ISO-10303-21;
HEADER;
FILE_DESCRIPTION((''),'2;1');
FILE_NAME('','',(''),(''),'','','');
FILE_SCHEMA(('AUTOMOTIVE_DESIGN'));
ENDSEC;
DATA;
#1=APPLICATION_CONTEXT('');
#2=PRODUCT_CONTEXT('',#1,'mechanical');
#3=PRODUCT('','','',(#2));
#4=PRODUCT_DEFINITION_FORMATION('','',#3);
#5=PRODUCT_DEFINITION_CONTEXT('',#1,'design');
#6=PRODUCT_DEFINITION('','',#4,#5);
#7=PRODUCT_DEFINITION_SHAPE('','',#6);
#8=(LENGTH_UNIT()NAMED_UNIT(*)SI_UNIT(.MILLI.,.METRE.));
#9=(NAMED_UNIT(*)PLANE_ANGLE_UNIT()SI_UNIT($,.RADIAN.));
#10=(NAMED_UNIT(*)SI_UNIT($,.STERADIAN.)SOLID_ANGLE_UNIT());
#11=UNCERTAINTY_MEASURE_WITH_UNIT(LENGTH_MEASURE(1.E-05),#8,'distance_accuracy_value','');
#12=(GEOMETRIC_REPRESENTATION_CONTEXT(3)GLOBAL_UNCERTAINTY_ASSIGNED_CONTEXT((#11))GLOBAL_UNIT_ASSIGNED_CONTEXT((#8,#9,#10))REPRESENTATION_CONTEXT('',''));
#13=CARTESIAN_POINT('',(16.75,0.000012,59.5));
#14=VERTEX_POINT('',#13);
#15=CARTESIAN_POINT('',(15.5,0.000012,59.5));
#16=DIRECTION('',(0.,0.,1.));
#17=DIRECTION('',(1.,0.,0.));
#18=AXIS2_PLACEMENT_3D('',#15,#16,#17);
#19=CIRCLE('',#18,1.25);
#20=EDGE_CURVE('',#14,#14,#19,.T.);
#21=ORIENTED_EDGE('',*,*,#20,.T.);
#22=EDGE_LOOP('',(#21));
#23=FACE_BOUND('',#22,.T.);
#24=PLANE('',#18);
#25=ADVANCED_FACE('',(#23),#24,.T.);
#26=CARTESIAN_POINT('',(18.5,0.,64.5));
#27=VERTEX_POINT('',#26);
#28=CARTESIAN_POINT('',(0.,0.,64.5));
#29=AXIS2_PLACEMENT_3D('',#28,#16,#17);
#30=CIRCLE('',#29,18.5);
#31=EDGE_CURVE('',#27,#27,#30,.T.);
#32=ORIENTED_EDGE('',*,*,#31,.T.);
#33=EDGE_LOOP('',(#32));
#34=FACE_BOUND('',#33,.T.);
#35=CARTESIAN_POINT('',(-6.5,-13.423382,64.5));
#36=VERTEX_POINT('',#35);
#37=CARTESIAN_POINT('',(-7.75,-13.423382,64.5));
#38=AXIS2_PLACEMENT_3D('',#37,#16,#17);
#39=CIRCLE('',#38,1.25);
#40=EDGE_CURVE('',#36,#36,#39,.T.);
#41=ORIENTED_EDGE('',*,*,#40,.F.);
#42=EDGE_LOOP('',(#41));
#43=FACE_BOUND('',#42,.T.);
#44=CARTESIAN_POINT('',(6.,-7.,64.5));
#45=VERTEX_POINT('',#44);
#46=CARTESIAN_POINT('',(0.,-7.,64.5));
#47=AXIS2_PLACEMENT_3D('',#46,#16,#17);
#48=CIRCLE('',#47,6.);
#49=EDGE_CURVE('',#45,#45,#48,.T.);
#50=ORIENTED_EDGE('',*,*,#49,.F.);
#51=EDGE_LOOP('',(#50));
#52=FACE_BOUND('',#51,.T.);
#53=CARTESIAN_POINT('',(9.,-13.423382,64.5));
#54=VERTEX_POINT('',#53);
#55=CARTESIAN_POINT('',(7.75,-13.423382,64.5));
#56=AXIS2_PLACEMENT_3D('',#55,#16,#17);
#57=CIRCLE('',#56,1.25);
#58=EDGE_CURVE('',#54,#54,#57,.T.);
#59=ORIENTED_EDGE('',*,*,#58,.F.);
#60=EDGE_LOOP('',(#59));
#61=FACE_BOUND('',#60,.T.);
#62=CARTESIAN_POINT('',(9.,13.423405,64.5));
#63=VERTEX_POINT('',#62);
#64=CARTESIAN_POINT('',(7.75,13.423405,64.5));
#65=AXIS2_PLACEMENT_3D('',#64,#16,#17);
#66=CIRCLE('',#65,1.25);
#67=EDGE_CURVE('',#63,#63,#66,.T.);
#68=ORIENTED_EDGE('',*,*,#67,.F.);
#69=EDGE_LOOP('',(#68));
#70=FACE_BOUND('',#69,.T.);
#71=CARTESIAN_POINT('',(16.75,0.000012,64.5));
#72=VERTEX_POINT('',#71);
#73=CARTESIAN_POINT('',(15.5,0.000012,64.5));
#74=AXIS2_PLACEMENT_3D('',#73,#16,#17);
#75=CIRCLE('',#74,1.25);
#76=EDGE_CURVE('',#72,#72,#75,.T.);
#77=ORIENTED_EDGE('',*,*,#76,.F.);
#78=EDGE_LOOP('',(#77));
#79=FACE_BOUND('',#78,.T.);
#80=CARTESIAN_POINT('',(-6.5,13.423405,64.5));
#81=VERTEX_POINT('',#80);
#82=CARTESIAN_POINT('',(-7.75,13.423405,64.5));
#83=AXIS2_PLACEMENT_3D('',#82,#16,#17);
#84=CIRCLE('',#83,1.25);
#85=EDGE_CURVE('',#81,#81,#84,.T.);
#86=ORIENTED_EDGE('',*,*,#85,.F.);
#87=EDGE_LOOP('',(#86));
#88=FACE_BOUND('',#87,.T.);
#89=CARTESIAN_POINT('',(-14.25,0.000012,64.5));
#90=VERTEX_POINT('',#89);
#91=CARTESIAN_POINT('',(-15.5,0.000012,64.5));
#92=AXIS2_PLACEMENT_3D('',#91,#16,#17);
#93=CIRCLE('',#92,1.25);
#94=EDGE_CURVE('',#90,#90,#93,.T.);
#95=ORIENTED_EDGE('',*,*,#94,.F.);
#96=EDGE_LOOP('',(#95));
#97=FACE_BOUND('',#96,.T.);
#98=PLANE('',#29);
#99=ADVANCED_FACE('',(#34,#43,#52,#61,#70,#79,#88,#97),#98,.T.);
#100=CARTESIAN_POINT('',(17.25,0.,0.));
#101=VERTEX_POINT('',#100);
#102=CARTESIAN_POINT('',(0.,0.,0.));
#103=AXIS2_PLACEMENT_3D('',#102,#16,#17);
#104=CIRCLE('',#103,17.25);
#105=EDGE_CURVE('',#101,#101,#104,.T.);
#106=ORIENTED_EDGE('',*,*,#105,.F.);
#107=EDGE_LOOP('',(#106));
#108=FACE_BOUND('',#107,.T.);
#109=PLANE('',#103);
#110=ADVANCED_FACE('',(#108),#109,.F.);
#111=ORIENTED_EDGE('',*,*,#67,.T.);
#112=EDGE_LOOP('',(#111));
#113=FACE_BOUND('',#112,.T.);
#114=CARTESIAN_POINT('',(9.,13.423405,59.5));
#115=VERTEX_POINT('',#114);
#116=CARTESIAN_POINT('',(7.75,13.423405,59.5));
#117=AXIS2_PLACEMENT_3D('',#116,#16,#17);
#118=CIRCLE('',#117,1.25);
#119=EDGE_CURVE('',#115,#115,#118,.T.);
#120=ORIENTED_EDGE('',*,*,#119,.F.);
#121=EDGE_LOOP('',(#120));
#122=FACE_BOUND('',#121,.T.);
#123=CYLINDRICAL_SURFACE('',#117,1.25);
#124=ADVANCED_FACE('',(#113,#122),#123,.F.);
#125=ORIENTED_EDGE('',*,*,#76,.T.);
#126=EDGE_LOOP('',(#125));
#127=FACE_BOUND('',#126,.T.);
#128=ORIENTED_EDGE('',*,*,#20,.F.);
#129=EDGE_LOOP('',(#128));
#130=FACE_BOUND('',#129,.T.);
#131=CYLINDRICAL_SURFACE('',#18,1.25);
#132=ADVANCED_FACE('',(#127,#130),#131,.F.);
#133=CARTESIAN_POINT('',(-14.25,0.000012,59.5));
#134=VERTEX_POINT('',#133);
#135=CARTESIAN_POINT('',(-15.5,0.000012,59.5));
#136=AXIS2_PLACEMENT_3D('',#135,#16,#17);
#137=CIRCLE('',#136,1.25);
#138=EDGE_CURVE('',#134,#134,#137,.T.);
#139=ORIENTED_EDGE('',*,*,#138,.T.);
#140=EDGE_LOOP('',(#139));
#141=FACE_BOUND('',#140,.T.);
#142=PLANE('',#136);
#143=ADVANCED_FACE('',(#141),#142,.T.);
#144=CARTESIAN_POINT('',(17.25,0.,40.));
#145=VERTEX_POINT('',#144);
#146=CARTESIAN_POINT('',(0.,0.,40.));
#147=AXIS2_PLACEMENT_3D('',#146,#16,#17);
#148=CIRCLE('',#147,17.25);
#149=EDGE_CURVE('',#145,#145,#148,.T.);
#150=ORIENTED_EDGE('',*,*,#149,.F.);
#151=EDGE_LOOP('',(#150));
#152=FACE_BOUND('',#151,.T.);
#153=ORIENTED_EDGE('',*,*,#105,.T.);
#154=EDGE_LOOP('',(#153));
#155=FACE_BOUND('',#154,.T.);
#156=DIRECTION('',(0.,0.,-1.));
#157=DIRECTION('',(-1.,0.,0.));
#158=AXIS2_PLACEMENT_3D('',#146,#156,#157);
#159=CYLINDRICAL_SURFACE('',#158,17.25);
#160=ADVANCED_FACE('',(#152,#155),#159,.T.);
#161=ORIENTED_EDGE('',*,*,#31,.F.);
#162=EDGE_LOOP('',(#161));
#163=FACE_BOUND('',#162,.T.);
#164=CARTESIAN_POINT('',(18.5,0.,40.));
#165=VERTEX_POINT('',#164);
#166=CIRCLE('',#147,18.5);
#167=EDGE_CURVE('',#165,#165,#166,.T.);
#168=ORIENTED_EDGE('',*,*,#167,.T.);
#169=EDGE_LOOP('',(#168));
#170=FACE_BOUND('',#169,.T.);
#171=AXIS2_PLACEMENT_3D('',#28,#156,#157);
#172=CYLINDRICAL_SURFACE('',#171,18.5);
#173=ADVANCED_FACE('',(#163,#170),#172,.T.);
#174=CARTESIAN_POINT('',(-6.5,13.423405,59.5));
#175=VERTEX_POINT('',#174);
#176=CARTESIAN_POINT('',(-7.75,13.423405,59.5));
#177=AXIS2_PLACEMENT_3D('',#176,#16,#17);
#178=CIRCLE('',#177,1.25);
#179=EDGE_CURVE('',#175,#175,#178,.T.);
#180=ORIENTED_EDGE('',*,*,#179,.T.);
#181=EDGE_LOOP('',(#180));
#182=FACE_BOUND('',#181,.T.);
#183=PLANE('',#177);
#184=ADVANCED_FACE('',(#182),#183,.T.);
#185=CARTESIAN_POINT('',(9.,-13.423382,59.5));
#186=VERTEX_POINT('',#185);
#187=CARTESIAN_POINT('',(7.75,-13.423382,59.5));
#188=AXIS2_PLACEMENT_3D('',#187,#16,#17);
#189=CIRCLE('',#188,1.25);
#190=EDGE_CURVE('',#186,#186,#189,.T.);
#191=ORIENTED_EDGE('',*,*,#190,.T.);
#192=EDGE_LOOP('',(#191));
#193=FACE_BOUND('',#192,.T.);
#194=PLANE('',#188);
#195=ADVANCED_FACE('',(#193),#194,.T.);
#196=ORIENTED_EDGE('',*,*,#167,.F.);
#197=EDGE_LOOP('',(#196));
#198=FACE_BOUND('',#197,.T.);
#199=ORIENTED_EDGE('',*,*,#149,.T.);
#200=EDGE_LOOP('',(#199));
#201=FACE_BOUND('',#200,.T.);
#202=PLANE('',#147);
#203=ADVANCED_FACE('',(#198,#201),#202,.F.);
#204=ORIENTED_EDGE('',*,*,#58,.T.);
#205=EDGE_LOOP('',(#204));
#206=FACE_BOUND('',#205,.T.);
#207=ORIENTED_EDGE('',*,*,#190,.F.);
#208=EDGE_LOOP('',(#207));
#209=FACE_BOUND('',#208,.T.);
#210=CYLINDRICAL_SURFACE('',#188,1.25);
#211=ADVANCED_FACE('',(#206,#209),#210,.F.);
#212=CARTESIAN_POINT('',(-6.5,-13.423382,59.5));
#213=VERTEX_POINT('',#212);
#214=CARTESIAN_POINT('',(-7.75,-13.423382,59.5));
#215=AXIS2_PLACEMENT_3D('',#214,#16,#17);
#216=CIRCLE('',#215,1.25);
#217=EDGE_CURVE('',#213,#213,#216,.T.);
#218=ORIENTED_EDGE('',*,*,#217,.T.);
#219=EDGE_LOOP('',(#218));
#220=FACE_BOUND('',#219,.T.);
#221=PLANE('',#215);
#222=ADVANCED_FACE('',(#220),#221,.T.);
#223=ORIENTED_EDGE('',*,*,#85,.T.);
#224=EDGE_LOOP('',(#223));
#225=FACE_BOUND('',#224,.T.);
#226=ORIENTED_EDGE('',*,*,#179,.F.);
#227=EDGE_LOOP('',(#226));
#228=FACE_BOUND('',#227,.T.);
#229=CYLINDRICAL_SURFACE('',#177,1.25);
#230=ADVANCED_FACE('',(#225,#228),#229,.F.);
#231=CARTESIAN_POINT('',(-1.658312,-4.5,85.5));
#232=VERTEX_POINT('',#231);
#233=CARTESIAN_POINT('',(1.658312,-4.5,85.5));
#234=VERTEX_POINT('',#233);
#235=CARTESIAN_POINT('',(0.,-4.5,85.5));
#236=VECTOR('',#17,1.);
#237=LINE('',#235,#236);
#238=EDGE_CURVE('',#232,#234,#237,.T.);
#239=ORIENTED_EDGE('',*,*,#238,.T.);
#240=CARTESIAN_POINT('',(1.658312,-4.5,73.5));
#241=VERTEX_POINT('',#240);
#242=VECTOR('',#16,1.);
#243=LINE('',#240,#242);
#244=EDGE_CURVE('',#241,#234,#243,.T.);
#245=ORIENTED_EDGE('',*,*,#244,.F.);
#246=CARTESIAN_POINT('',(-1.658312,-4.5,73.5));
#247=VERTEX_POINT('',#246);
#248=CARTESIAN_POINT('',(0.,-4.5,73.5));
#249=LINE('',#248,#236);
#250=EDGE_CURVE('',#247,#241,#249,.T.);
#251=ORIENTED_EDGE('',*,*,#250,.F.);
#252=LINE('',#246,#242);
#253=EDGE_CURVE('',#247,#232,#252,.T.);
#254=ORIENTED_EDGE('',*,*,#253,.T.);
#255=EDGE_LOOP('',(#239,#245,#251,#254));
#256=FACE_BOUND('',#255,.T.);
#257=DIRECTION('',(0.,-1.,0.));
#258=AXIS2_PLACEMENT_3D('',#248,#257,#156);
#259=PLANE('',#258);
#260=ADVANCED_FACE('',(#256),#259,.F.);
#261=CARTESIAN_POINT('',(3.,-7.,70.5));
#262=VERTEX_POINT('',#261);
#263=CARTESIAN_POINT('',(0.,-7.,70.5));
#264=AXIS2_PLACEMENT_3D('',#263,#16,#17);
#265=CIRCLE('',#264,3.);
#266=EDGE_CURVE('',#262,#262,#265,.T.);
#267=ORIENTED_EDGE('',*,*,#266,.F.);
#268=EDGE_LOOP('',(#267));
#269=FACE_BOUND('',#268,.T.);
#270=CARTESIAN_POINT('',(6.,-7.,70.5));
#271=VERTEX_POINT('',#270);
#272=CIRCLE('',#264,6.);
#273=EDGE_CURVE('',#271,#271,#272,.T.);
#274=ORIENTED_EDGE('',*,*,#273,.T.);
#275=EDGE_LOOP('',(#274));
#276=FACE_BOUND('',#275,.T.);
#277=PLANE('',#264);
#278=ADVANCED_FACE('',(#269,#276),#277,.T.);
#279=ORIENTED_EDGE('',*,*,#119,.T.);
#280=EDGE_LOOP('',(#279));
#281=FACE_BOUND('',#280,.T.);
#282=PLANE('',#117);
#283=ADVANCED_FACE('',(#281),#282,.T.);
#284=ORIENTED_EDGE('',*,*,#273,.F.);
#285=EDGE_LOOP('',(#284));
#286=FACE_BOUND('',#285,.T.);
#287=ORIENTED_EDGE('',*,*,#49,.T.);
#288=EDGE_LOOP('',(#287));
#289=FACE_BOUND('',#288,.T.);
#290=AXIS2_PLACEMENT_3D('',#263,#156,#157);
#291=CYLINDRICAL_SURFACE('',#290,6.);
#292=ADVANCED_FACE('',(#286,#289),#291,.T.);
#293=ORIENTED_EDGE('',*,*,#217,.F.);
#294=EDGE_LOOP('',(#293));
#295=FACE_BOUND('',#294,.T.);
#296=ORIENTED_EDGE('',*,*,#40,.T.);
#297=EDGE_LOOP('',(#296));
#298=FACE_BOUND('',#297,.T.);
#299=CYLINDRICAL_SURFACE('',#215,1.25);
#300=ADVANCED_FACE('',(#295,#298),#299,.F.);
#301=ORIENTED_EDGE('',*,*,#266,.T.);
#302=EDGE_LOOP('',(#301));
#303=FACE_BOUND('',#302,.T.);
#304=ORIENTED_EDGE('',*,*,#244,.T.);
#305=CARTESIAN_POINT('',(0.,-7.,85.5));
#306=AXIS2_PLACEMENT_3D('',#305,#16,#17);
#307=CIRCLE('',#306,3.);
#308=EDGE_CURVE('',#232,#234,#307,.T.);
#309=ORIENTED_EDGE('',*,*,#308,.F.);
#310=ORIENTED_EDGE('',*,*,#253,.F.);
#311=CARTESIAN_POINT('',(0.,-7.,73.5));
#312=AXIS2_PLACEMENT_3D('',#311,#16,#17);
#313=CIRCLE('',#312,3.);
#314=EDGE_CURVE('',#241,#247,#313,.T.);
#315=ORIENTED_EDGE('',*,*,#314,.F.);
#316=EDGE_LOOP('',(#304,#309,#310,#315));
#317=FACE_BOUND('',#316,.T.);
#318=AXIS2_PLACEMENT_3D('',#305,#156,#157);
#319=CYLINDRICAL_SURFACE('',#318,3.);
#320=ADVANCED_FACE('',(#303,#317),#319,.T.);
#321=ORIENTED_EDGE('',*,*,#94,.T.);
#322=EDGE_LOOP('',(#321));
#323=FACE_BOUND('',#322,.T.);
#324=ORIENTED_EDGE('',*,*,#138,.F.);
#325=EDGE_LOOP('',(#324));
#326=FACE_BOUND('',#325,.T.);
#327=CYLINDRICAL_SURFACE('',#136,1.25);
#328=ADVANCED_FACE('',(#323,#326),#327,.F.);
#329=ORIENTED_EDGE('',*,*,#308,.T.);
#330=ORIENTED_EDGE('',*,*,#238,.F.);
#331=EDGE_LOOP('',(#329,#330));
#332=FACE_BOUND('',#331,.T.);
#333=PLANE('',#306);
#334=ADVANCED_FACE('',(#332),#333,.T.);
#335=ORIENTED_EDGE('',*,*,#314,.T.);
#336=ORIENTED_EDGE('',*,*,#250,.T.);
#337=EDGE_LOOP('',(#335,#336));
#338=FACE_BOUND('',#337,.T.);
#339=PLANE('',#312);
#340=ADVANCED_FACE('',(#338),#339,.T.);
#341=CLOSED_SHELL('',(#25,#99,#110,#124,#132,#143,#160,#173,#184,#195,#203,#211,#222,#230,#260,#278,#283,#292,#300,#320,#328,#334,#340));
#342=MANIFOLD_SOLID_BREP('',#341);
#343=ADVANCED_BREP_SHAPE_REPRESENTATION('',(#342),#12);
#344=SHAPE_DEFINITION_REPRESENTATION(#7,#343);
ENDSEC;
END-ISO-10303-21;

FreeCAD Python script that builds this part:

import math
import FreeCAD as App
import Part
import Sketcher
from FreeCAD import Vector

doc = App.newDocument("Part")
body = doc.addObject("PartDesign::Body", "Body")

sketch1 = body.newObject("Sketcher::SketchObject", "Sketch")
sketch1.AttachmentSupport = (doc.getObject("XY_Plane"), [""])
sketch1.MapMode = "FlatFace"
sketch1.addGeometry(Part.Circle(Vector(0, 0, 0), Vector(0, 0, 1), 17.25), False)
sketch1.addConstraint(Sketcher.Constraint("Coincident", 0, 3, -1, 1))
sketch1.addConstraint(Sketcher.Constraint("Diameter", 0, 34.5))
pad1 = body.newObject("PartDesign::Pad", "Pad")
pad1.Profile = sketch1
pad1.Length = 40

sketch2 = body.newObject("Sketcher::SketchObject", "Sketch001")
sketch2.AttachmentSupport = (doc.getObject("XY_Plane"), [""])
sketch2.MapMode = "FlatFace"
sketch2.AttachmentOffset = App.Placement(Vector(0, 0, 40), App.Rotation())
sketch2.addGeometry(Part.Circle(Vector(0, 0, 0), Vector(0, 0, 1), 18.5), False)
sketch2.addConstraint(Sketcher.Constraint("Coincident", 0, 3, -1, 1))
sketch2.addConstraint(Sketcher.Constraint("Diameter", 0, 37.0))
pad2 = body.newObject("PartDesign::Pad", "Pad001")
pad2.Profile = sketch2
pad2.Length = 24.5

sketch3 = body.newObject("Sketcher::SketchObject", "Sketch002")
sketch3.AttachmentSupport = (doc.getObject("XY_Plane"), [""])
sketch3.MapMode = "FlatFace"
sketch3.AttachmentOffset = App.Placement(Vector(0, 0, 64.5), App.Rotation())
sketch3.addGeometry(Part.Circle(Vector(0, -7, 0), Vector(0, 0, 1), 6), False)
sketch3.addConstraint(Sketcher.Constraint("PointOnObject", 0, 3, -2))
sketch3.addConstraint(Sketcher.Constraint("Diameter", 0, 12.0))
sketch3.addConstraint(Sketcher.Constraint("DistanceY", 0, 3, -1, 1, 7.0))
pad3 = body.newObject("PartDesign::Pad", "Pad002")
pad3.Profile = sketch3
pad3.Length = 6

sketch4 = body.newObject("Sketcher::SketchObject", "Sketch003")
sketch4.AttachmentSupport = (doc.getObject("XY_Plane"), [""])
sketch4.MapMode = "FlatFace"
sketch4.AttachmentOffset = App.Placement(Vector(0, 0, 70.5), App.Rotation())
sketch4.addGeometry(Part.Circle(Vector(0, -7, 0), Vector(0, 0, 1), 3), False)
sketch4.addConstraint(Sketcher.Constraint("PointOnObject", 0, 3, -2))
sketch4.addConstraint(Sketcher.Constraint("Diameter", 0, 6.0))
sketch4.addConstraint(Sketcher.Constraint("DistanceY", 0, 3, -1, 1, 7.0))
pad4 = body.newObject("PartDesign::Pad", "Pad003")
pad4.Profile = sketch4
pad4.Length = 15

sketch5 = body.newObject("Sketcher::SketchObject", "Sketch004")
sketch5.AttachmentSupport = (doc.getObject("XY_Plane"), [""])
sketch5.MapMode = "FlatFace"
sketch5.AttachmentOffset = App.Placement(Vector(0, 0, 73.5), App.Rotation())
sketch5.addGeometry(Part.ArcOfCircle(Part.Circle(Vector(0, -7, 0), Vector(0, 0, 1), 3), math.radians(56.44269), math.radians(123.55731)), False)
sketch5.addGeometry(Part.LineSegment(Vector(-1.658312, -4.5, 0), Vector(1.658312, -4.5, 0)), False)
sketch5.addConstraint(Sketcher.Constraint("Coincident", 0, 1, 1, 2))
sketch5.addConstraint(Sketcher.Constraint("Coincident", 1, 1, 0, 2))
sketch5.addConstraint(Sketcher.Constraint("Horizontal", 1))
sketch5.addConstraint(Sketcher.Constraint("PointOnObject", 0, 3, -2))
sketch5.addConstraint(Sketcher.Constraint("Radius", 0, 3.0))
sketch5.addConstraint(Sketcher.Constraint("DistanceY", 0, 3, -1, 1, 7.0))
sketch5.addConstraint(Sketcher.Constraint("DistanceY", 0, 1, -1, 1, 4.5))
pocket1 = body.newObject("PartDesign::Pocket", "Pocket")
pocket1.Profile = sketch5
pocket1.Length = 12
pocket1.Reversed = True

sketch6 = body.newObject("Sketcher::SketchObject", "Sketch005")
sketch6.AttachmentSupport = (doc.getObject("XY_Plane"), [""])
sketch6.MapMode = "FlatFace"
sketch6.AttachmentOffset = App.Placement(Vector(0, 0, 64.5), App.Rotation())
sketch6.addGeometry(Part.Circle(Vector(-15.5, 0.000012, 0), Vector(0, 0, 1), 1.25), False)
sketch6.addGeometry(Part.Circle(Vector(-7.75, 13.423405, 0), Vector(0, 0, 1), 1.25), False)
sketch6.addGeometry(Part.Circle(Vector(7.75, 13.423405, 0), Vector(0, 0, 1), 1.25), False)
sketch6.addGeometry(Part.Circle(Vector(15.5, 0.000012, 0), Vector(0, 0, 1), 1.25), False)
sketch6.addGeometry(Part.Circle(Vector(7.75, -13.423382, 0), Vector(0, 0, 1), 1.25), False)
sketch6.addGeometry(Part.Circle(Vector(-7.75, -13.423382, 0), Vector(0, 0, 1), 1.25), False)
sketch6.addConstraint(Sketcher.Constraint("Equal", 0, 1))
sketch6.addConstraint(Sketcher.Constraint("Equal", 1, 2))
sketch6.addConstraint(Sketcher.Constraint("Equal", 2, 3))
sketch6.addConstraint(Sketcher.Constraint("Equal", 3, 4))
sketch6.addConstraint(Sketcher.Constraint("Equal", 4, 5))
sketch6.addConstraint(Sketcher.Constraint("Symmetric", 1, 3, 2, 3, -2))
sketch6.addConstraint(Sketcher.Constraint("Symmetric", 0, 3, 3, 3, -2))
sketch6.addConstraint(Sketcher.Constraint("Symmetric", 4, 3, 5, 3, -2))
sketch6.addConstraint(Sketcher.Constraint("Vertical", 2, 3, 4, 3))
sketch6.addConstraint(Sketcher.Constraint("Diameter", 0, 2.5))
sketch6.addConstraint(Sketcher.Constraint("DistanceX", 0, 3, 3, 3, 31.0))
sketch6.addConstraint(Sketcher.Constraint("DistanceX", 1, 3, 2, 3, 15.5))
sketch6.addConstraint(Sketcher.Constraint("DistanceY", -1, 1, 1, 3, 13.423405))
sketch6.addConstraint(Sketcher.Constraint("DistanceY", 4, 3, -1, 1, 13.423382))
sketch6.addConstraint(Sketcher.Constraint("DistanceY", 0, 3, 1, 3, 13.423394))
pocket2 = body.newObject("PartDesign::Pocket", "Pocket001")
pocket2.Profile = sketch6
pocket2.Length = 5

doc.recompute()
